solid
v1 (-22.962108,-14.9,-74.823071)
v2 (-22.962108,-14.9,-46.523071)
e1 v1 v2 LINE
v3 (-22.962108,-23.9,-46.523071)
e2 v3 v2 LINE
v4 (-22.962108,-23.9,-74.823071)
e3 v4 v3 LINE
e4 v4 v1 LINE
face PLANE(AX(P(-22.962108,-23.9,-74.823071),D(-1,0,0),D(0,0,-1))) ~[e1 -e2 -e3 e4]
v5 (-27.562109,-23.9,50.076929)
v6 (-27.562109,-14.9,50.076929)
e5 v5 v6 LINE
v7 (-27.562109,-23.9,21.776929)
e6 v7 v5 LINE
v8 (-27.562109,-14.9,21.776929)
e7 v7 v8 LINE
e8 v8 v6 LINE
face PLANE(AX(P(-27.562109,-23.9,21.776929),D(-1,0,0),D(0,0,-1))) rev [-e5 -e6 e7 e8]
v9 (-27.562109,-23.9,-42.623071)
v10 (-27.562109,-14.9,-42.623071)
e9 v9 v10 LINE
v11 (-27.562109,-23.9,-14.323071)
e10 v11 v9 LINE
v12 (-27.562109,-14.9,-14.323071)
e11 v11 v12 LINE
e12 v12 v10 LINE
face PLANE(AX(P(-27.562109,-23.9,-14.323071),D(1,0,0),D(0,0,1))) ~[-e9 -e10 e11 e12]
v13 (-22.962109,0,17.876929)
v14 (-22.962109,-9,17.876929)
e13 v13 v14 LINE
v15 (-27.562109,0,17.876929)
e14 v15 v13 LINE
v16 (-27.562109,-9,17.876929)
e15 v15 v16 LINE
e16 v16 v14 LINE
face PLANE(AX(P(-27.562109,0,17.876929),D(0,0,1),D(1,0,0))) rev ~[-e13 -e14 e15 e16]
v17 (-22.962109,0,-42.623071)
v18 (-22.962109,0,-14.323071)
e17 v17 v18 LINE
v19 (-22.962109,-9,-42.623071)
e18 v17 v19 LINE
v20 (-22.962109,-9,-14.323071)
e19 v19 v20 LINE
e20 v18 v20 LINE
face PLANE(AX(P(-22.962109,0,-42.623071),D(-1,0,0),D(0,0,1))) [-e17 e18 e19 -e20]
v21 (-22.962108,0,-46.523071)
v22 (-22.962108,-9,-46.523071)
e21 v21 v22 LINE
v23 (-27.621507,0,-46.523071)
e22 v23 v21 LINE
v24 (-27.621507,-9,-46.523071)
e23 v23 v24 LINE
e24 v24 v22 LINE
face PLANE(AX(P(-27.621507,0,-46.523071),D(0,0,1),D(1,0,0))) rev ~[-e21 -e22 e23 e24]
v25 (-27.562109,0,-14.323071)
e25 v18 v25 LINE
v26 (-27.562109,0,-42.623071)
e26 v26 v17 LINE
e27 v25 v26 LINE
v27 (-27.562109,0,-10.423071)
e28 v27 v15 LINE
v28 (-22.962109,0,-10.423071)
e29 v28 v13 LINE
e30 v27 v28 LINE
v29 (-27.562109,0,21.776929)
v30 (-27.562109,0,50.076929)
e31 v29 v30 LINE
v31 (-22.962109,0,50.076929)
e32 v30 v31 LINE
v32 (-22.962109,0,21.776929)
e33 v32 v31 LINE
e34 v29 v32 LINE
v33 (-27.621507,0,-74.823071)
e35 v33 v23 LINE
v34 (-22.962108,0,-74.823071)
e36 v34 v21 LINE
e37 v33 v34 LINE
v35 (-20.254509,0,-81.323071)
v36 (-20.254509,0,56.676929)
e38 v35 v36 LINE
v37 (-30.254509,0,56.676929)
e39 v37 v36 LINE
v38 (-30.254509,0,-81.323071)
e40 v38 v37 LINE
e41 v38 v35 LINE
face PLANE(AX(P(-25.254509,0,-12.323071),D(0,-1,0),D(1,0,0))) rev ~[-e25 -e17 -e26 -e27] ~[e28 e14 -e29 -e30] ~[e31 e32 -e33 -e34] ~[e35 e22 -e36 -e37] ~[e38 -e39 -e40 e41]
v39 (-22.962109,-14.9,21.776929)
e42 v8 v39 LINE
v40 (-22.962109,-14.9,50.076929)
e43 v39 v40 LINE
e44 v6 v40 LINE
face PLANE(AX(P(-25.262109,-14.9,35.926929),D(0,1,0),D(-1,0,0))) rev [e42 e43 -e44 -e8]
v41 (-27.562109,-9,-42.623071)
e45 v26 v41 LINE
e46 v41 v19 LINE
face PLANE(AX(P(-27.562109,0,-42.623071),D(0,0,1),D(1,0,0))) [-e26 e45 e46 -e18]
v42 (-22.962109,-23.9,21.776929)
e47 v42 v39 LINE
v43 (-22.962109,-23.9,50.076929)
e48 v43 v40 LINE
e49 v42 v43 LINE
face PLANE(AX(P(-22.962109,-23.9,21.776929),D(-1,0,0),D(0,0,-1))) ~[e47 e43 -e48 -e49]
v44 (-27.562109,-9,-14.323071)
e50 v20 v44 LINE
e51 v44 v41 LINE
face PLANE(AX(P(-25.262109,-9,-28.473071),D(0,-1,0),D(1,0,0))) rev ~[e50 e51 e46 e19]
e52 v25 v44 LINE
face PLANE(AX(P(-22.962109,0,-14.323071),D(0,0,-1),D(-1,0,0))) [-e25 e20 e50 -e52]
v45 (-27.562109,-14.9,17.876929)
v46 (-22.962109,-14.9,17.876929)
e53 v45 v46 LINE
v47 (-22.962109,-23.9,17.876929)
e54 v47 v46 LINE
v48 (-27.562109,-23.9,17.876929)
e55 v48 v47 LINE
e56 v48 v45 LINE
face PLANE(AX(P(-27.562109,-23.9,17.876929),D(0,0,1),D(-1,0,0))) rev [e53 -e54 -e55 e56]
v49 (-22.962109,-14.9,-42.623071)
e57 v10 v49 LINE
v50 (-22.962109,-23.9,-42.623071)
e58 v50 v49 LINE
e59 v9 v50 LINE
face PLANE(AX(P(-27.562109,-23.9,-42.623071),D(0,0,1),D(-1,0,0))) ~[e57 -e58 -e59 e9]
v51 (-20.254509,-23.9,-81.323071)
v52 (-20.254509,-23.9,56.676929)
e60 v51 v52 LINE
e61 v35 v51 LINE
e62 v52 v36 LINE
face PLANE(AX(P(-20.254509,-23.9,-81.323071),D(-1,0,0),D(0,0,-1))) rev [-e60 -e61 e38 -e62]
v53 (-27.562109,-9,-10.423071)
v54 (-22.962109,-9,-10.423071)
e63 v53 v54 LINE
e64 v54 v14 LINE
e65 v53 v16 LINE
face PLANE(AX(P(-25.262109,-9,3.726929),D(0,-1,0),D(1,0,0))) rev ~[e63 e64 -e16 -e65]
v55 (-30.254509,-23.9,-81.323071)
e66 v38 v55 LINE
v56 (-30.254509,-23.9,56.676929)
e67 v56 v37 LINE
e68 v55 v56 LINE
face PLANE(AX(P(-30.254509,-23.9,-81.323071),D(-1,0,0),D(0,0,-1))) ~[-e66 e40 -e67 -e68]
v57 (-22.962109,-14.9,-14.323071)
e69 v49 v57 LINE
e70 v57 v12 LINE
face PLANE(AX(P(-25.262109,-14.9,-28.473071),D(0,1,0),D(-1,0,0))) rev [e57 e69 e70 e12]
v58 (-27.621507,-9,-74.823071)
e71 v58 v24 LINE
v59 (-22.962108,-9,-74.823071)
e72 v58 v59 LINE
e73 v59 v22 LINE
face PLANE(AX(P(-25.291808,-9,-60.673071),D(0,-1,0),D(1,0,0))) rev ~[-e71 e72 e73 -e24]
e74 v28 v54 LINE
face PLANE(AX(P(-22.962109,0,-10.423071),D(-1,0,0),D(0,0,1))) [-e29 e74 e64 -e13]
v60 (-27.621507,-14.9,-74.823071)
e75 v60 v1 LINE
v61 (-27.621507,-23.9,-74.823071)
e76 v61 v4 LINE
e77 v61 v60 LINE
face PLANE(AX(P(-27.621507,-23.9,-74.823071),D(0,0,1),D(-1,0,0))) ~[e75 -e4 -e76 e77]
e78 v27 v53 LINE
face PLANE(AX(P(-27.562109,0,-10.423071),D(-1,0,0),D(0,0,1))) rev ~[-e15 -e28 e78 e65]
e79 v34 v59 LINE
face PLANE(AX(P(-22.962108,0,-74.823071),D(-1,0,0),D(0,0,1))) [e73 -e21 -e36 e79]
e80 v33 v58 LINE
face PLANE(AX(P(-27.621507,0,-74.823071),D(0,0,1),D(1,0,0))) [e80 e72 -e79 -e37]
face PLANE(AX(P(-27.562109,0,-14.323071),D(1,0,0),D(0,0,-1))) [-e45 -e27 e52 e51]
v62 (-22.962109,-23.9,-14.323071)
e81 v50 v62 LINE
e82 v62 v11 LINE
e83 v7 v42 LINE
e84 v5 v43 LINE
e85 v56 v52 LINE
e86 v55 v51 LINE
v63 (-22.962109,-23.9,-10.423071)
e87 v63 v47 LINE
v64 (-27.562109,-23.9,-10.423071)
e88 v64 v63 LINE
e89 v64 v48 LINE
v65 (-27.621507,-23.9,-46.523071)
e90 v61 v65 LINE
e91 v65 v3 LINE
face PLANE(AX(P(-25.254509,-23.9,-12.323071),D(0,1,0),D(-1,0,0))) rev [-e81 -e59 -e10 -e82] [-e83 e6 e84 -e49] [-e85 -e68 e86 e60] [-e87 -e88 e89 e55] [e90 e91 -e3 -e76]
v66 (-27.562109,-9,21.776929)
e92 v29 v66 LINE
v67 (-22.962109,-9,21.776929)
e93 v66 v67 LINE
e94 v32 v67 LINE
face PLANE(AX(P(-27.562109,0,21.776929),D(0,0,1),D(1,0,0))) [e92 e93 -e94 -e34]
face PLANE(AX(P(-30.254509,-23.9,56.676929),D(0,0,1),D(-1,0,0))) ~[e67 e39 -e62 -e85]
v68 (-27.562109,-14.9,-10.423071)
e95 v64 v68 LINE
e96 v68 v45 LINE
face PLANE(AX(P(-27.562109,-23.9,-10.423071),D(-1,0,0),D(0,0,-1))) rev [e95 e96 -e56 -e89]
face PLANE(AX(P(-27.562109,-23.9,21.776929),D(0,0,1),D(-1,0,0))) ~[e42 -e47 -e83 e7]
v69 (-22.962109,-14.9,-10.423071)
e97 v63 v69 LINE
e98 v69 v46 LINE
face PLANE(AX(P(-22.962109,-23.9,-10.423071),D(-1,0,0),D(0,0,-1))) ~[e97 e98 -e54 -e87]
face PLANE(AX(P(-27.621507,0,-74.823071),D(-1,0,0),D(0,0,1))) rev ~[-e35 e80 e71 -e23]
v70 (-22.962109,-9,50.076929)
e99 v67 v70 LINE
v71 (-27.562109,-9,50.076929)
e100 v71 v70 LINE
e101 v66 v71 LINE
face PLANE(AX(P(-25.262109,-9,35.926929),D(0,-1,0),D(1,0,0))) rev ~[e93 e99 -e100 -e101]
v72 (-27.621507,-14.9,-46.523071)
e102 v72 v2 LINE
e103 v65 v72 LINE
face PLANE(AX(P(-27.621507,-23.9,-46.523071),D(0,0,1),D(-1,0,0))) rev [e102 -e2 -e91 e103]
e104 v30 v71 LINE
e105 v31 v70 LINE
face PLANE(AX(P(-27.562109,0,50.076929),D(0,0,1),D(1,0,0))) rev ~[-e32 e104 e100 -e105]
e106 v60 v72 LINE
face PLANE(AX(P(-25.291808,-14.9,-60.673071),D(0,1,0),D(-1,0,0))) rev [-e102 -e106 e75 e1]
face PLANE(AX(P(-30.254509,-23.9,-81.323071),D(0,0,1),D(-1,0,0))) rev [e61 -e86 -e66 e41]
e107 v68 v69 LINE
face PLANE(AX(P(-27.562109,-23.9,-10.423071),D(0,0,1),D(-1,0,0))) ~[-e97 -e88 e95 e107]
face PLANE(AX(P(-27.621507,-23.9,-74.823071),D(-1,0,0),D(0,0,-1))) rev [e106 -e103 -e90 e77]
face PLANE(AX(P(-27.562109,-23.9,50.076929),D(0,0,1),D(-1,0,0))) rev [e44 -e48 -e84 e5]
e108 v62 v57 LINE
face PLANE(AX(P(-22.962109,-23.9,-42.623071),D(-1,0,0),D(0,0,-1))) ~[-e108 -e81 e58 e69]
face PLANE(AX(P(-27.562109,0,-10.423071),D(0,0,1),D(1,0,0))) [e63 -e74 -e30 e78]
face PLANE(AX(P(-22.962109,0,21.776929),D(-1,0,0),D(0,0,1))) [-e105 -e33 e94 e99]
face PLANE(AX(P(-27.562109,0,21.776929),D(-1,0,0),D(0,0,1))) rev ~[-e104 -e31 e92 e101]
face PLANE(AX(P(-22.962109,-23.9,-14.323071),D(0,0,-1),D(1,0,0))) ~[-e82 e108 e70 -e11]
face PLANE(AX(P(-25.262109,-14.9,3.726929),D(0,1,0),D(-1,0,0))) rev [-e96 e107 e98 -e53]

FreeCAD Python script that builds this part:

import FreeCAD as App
import Part
import Sketcher

V = App.Vector
Q = App.Units.Quantity


def add_polygon(sketch, points):
    """Adds a closed chain of lines whose ends are joined by coincident constraints."""
    first, n = sketch.GeometryCount, len(points)
    for a, b in zip(points, points[1:] + points[:1]):
        sketch.addGeometry(Part.LineSegment(App.Vector(*a, 0), App.Vector(*b, 0)), False)
    for i in range(n):
        sketch.addConstraint(Sketcher.Constraint("Coincident", first + i, 2, first + (i + 1) % n, 1))

doc = App.newDocument("Part")
params = doc.addObject("Spreadsheet::Sheet", "Params")
for row, (alias, value) in enumerate([
    ("sketch1_width", "10 mm"),
    ("sketch1_height", "138 mm"),
    ("pad1_length", "11.95 mm"),
    ("sketch2_width", "4.6 mm"),
    ("sketch2_height", "28.3 mm"),
    ("pocket1_length", "9 mm"),
], start=1):
    params.set(f"A{row}", alias)
    params.set(f"B{row}", "=" + value)
    params.setAlias(f"B{row}", alias)

body = doc.addObject("PartDesign::Body", "Body")

# Sketch on XZ plane
sketch1 = body.newObject("Sketcher::SketchObject", "Sketch")
sketch1.AttachmentSupport = (doc.getObject("XZ_Plane"), [""])
sketch1.MapMode = "FlatFace"
add_polygon(sketch1, [(-30, 57), (-30, -81), (-20, -81), (-20, 57)])  # lines 0-3
sketch1.addConstraint(Sketcher.Constraint("Vertical", 0))
sketch1.addConstraint(Sketcher.Constraint("Horizontal", 1))
sketch1.addConstraint(Sketcher.Constraint("Vertical", 2))
sketch1.addConstraint(Sketcher.Constraint("Horizontal", 3))
sketch1.addConstraint(Sketcher.Constraint("DistanceX", 1, 1, 1, 2, Q("10 mm")))
sketch1.addConstraint(Sketcher.Constraint("DistanceY", 0, 2, 0, 1, Q("138 mm")))
sketch1.addConstraint(Sketcher.Constraint("DistanceX", 0, 2, -1, 1, Q("30.254509 mm")))
sketch1.addConstraint(Sketcher.Constraint("DistanceY", 0, 2, -1, 1, Q("81.323071 mm")))
sketch1.setExpression("Constraints[8]", "Params.sketch1_width")
sketch1.setExpression("Constraints[9]", "Params.sketch1_height")
pad1 = body.newObject("PartDesign::Pad", "Pad")
pad1.Profile = sketch1
pad1.setExpression("Length", "Params.pad1_length")

# Sketch on XZ plane
sketch2 = body.newObject("Sketcher::SketchObject", "Sketch001")
sketch2.AttachmentSupport = (doc.getObject("XZ_Plane"), [""])
sketch2.MapMode = "FlatFace"
add_polygon(sketch2, [(-27.6, 50.1), (-27.6, 21.8), (-23, 21.8), (-23, 50.1)])  # lines 0-3
add_polygon(sketch2, [(-27.6, 17.9), (-27.6, -10.4), (-23, -10.4), (-23, 17.9)])  # lines 4-7
add_polygon(sketch2, [(-23, -14.3), (-27.6, -14.3), (-27.6, -42.6), (-23, -42.6)])  # lines 8-11
add_polygon(sketch2, [(-27.6, -46.5), (-27.6, -74.8), (-23, -74.8), (-23, -46.5)])  # lines 12-15
sketch2.addConstraint(Sketcher.Constraint("Vertical", 0))
sketch2.addConstraint(Sketcher.Constraint("Horizontal", 1))
sketch2.addConstraint(Sketcher.Constraint("Vertical", 2))
sketch2.addConstraint(Sketcher.Constraint("Horizontal", 3))
sketch2.addConstraint(Sketcher.Constraint("Vertical", 4))
sketch2.addConstraint(Sketcher.Constraint("Horizontal", 5))
sketch2.addConstraint(Sketcher.Constraint("Vertical", 6))
sketch2.addConstraint(Sketcher.Constraint("Horizontal", 7))
sketch2.addConstraint(Sketcher.Constraint("Horizontal", 8))
sketch2.addConstraint(Sketcher.Constraint("Vertical", 9))
sketch2.addConstraint(Sketcher.Constraint("Horizontal", 10))
sketch2.addConstraint(Sketcher.Constraint("Vertical", 11))
sketch2.addConstraint(Sketcher.Constraint("Vertical", 12))
sketch2.addConstraint(Sketcher.Constraint("Horizontal", 13))
sketch2.addConstraint(Sketcher.Constraint("Vertical", 14))
sketch2.addConstraint(Sketcher.Constraint("Horizontal", 15))
sketch2.addConstraint(Sketcher.Constraint("Vertical", 3, 2, 4, 2))
sketch2.addConstraint(Sketcher.Constraint("Vertical", 2, 2, 5, 2))
sketch2.addConstraint(Sketcher.Constraint("Vertical", 7, 2, 8, 2))
sketch2.addConstraint(Sketcher.Constraint("Vertical", 6, 2, 10, 2))
sketch2.addConstraint(Sketcher.Constraint("Vertical", 11, 2, 13, 2))
sketch2.addConstraint(Sketcher.Constraint("Equal", 2, 4))
sketch2.addConstraint(Sketcher.Constraint("Equal", 6, 9))
sketch2.addConstraint(Sketcher.Constraint("Equal", 11, 12))
sketch2.addConstraint(Sketcher.Constraint("DistanceX", 1, 1, 1, 2, Q("4.6 mm")))
sketch2.addConstraint(Sketcher.Constraint("DistanceY", 0, 2, 0, 1, Q("28.3 mm")))
sketch2.addConstraint(Sketcher.Constraint("DistanceY", 4, 2, 0, 2, Q("32.2 mm")))
sketch2.addConstraint(Sketcher.Constraint("DistanceY", 8, 2, 4, 2, Q("3.9 mm")))
sketch2.addConstraint(Sketcher.Constraint("DistanceY", 12, 2, 9, 2, Q("32.2 mm")))
sketch2.addConstraint(Sketcher.Constraint("DistanceX", 13, 1, 13, 2, Q("4.659399 mm")))
sketch2.addConstraint(Sketcher.Constraint("DistanceX", 0, 2, -1, 1, Q("27.562109 mm")))
sketch2.addConstraint(Sketcher.Constraint("DistanceY", -1, 1, 0, 2, Q("21.776929 mm")))
sketch2.setExpression("Constraints[40]", "Params.sketch2_width")
sketch2.setExpression("Constraints[41]", "Params.sketch2_height")
pocket1 = body.newObject("PartDesign::Pocket", "Pocket")
pocket1.Profile = sketch2
pocket1.setExpression("Length", "Params.pocket1_length")
pocket1.Reversed = True
body2 = doc.addObject("PartDesign::Body", "Body001")
doc.recompute()

body2.BaseFeature = body
doc.recompute()

mirroring = doc.addObject("Part::Mirroring", "Mirroring")
mirroring.Source = body
mirroring.Base = V(-25.254509, -11.95, -12.323071)
mirroring.Normal = V(0, -1, 0)
body3 = doc.addObject("PartDesign::Body", "Body002")
body3.BaseFeature = mirroring
boolean = body2.newObject("PartDesign::Boolean", "Boolean")
boolean.Type = "Fuse"
boolean.addObjects([body3])
doc.recompute()
mirroring.Visibility = False

doc.recompute()
